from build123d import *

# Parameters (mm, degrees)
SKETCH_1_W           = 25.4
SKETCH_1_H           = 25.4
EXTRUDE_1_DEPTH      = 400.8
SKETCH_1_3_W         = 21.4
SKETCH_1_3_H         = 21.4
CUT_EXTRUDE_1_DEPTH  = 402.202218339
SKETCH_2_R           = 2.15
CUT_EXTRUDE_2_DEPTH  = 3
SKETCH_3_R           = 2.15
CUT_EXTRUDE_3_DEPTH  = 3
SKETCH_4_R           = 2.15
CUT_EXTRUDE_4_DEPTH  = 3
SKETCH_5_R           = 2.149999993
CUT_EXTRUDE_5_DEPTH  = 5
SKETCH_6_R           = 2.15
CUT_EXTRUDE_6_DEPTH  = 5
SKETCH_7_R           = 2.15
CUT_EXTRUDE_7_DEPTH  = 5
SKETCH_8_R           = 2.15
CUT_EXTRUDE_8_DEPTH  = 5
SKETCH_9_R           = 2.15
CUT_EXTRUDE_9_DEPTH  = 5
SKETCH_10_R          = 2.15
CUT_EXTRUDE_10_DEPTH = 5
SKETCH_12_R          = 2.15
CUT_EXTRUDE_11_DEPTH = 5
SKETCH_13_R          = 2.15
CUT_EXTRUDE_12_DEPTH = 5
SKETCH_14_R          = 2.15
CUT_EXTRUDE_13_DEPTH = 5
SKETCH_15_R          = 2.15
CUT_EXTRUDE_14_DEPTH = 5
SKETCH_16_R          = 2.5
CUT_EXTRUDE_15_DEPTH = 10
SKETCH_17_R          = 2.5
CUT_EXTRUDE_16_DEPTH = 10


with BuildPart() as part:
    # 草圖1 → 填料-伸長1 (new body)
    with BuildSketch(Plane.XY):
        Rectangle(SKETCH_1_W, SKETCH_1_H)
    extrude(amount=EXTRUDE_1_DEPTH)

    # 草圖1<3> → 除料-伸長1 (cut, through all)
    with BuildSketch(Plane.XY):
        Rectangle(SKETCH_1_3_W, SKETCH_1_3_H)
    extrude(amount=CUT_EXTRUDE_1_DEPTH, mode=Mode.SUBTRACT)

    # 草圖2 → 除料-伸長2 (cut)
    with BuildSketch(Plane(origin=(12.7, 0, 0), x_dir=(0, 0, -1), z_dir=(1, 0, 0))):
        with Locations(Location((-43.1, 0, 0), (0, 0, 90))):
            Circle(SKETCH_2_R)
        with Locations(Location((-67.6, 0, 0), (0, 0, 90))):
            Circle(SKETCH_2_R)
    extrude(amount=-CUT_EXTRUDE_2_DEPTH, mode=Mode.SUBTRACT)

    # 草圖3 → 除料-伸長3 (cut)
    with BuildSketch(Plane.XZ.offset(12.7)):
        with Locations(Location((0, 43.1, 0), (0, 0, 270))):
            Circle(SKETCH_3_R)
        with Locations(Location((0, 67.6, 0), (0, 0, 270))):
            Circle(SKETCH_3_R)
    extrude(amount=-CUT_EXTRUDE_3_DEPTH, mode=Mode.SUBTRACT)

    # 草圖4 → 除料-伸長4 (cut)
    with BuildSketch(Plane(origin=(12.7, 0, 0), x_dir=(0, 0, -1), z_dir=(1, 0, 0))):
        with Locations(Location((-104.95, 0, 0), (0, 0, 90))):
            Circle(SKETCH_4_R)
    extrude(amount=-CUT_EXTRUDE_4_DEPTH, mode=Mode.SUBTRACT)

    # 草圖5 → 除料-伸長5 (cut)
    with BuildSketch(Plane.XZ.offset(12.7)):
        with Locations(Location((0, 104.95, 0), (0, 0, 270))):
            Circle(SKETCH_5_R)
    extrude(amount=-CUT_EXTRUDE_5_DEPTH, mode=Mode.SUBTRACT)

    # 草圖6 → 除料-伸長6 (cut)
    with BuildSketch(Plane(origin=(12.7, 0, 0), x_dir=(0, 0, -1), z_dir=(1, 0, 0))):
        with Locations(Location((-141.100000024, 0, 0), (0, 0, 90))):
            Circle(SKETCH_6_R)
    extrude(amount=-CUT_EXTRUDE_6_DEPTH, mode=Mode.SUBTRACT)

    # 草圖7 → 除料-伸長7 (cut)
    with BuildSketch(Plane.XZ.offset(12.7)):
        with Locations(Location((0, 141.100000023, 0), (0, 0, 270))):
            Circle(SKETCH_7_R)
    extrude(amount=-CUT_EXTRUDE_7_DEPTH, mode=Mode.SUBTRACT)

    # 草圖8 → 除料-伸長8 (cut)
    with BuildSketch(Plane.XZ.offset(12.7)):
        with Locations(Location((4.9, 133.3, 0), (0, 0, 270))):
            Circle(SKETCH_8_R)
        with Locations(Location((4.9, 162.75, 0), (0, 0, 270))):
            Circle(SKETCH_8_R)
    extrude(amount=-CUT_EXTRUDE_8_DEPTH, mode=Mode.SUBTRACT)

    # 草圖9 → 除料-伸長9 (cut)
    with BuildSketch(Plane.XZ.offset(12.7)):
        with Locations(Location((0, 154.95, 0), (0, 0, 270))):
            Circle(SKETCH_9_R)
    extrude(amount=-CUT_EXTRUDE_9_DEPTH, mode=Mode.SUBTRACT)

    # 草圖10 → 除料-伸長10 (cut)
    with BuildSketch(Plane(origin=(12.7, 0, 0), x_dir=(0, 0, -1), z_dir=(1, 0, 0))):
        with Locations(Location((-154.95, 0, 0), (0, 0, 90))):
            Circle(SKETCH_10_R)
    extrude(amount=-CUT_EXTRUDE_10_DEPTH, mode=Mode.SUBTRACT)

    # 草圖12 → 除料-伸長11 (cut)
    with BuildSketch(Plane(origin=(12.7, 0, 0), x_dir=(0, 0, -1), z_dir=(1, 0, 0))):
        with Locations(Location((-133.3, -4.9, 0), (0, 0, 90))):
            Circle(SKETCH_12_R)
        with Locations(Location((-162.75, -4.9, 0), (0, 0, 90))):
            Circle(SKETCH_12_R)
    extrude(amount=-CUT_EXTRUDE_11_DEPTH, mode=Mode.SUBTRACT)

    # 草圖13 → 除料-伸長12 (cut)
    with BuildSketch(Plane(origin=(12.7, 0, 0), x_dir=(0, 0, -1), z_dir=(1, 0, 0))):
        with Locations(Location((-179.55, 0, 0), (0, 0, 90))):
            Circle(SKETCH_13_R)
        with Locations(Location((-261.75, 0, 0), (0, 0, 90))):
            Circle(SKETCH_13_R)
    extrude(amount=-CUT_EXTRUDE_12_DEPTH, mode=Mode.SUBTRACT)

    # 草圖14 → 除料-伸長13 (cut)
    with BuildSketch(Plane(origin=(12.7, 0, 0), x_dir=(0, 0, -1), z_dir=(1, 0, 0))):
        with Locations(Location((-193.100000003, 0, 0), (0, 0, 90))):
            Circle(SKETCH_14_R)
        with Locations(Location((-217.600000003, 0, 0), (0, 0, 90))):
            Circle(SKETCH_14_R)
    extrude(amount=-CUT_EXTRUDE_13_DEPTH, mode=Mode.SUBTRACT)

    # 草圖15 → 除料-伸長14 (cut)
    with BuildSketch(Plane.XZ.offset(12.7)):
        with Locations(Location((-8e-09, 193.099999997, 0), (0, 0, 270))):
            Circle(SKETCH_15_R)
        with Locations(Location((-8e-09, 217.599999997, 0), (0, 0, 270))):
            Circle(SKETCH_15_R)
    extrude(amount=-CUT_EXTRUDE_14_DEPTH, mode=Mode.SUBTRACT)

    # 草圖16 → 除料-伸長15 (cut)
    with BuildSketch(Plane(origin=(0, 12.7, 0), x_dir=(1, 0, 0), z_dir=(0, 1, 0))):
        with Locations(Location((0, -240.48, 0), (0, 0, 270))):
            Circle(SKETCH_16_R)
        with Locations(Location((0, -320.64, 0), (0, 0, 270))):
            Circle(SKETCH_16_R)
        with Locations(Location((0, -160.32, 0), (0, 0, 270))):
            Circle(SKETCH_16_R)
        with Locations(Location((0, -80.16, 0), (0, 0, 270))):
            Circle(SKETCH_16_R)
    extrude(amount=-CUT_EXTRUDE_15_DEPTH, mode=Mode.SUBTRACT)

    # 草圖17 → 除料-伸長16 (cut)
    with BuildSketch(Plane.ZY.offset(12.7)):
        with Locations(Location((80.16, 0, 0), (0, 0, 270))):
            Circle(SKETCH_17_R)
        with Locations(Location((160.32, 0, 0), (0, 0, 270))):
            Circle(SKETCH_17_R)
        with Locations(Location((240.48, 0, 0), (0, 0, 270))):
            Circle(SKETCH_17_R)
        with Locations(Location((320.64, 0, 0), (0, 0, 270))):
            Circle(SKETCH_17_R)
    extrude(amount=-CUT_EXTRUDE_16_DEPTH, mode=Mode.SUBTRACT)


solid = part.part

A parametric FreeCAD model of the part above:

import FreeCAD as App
import Part
import Sketcher

V = App.Vector
Q = App.Units.Quantity

doc = App.newDocument("Part")
params = doc.addObject("Spreadsheet::Sheet", "Params")
for row, (alias, value) in enumerate([
    ("sketch1_width", "25.4 mm"),
    ("pad1_length", "400.8 mm"),
    ("sketch2_width", "21.4 mm"),
    ("sketch3_diameter", "4.3 mm"),
    ("pocket2_length", "3 mm"),
    ("sketch4_diameter", "4.3 mm"),
    ("pocket3_length", "3 mm"),
    ("sketch5_diameter", "4.3 mm"),
    ("pocket4_length", "3 mm"),
    ("sketch6_diameter", "4.3 mm"),
    ("pocket5_length", "5 mm"),
    ("sketch7_diameter", "4.3 mm"),
    ("pocket6_length", "5 mm"),
    ("sketch8_diameter", "4.3 mm"),
    ("pocket7_length", "5 mm"),
    ("sketch9_diameter", "4.3 mm"),
    ("pocket8_length", "5 mm"),
    ("sketch10_diameter", "4.3 mm"),
    ("pocket9_length", "5 mm"),
    ("sketch11_diameter", "4.3 mm"),
    ("pocket10_length", "5 mm"),
    ("sketch12_diameter", "4.3 mm"),
    ("pocket11_length", "5 mm"),
    ("sketch13_diameter", "4.3 mm"),
    ("pocket12_length", "5 mm"),
    ("sketch14_diameter", "4.3 mm"),
    ("pocket13_length", "5 mm"),
    ("sketch15_diameter", "4.3 mm"),
    ("pocket14_length", "5 mm"),
    ("sketch16_diameter", "5 mm"),
    ("pocket15_length", "10 mm"),
    ("sketch17_diameter", "5 mm"),
    ("pocket16_length", "10 mm"),
], start=1):
    params.set(f"A{row}", alias)
    params.set(f"B{row}", "=" + value)
    params.setAlias(f"B{row}", alias)

body = doc.addObject("PartDesign::Body", "Body")

sketch1 = body.newObject("Sketcher::SketchObject", "Sketch")
sketch1.AttachmentSupport = (doc.getObject("XY_Plane"), [""])
sketch1.MapMode = "FlatFace"
sketch1.addGeometry([
    Part.LineSegment(V(-13, 13, 0), V(-13, -13, 0)),
    Part.LineSegment(V(-13, -13, 0), V(13, -13, 0)),
    Part.LineSegment(V(13, -13, 0), V(13, 13, 0)),
    Part.LineSegment(V(13, 13, 0), V(-13, 13, 0)),
], False)
sketch1.addConstraint([
    Sketcher.Constraint("Coincident", 0, 2, 1, 1),
    Sketcher.Constraint("Coincident", 1, 2, 2, 1),
    Sketcher.Constraint("Coincident", 2, 2, 3, 1),
    Sketcher.Constraint("Coincident", 3, 2, 0, 1),
    Sketcher.Constraint("Vertical", 0),
    Sketcher.Constraint("Horizontal", 1),
    Sketcher.Constraint("Vertical", 2),
    Sketcher.Constraint("Horizontal", 3),
    Sketcher.Constraint("Symmetric", 0, 2, 2, 2, -1, 1),
    Sketcher.Constraint("Equal", 3, 0),
    Sketcher.Constraint("DistanceX", 1, 1, 1, 2, Q("25.4 mm")),
])
sketch1.setExpression("Constraints[10]", "Params.sketch1_width")
pad1 = body.newObject("PartDesign::Pad", "Pad")
pad1.Profile = sketch1
pad1.setExpression("Length", "Params.pad1_length")

sketch2 = body.newObject("Sketcher::SketchObject", "Sketch001")
sketch2.AttachmentSupport = (doc.getObject("XY_Plane"), [""])
sketch2.MapMode = "FlatFace"
sketch2.addGeometry([
    Part.LineSegment(V(-11, 11, 0), V(-11, -11, 0)),
    Part.LineSegment(V(-11, -11, 0), V(11, -11, 0)),
    Part.LineSegment(V(11, -11, 0), V(11, 11, 0)),
    Part.LineSegment(V(11, 11, 0), V(-11, 11, 0)),
], False)
sketch2.addConstraint([
    Sketcher.Constraint("Coincident", 0, 2, 1, 1),
    Sketcher.Constraint("Coincident", 1, 2, 2, 1),
    Sketcher.Constraint("Coincident", 2, 2, 3, 1),
    Sketcher.Constraint("Coincident", 3, 2, 0, 1),
    Sketcher.Constraint("Vertical", 0),
    Sketcher.Constraint("Horizontal", 1),
    Sketcher.Constraint("Vertical", 2),
    Sketcher.Constraint("Horizontal", 3),
    Sketcher.Constraint("Symmetric", 0, 2, 2, 2, -1, 1),
    Sketcher.Constraint("Equal", 3, 0),
    Sketcher.Constraint("DistanceX", 1, 1, 1, 2, Q("21.4 mm")),
])
sketch2.setExpression("Constraints[10]", "Params.sketch2_width")
pocket1 = body.newObject("PartDesign::Pocket", "Pocket")
pocket1.Profile = sketch2
pocket1.Type = "ThroughAll"
pocket1.Reversed = True

sketch3 = body.newObject("Sketcher::SketchObject", "Sketch002")
sketch3.AttachmentSupport = (doc.getObject("YZ_Plane"), [""])
sketch3.MapMode = "FlatFace"
sketch3.AttachmentOffset = App.Placement(V(0, 0, 12.7), App.Rotation())
sketch3.addGeometry([
    Part.Circle(V(0, 43.1, 0), V(0, 0, 1), 2.1),
    Part.Circle(V(0, 67.6, 0), V(0, 0, 1), 2.1),
], False)
sketch3.addConstraint([
    Sketcher.Constraint("Equal", 0, 1),
    Sketcher.Constraint("PointOnObject", 0, 3, -2),
    Sketcher.Constraint("PointOnObject", 1, 3, -2),
    Sketcher.Constraint("Diameter", 0, Q("4.3 mm")),
    Sketcher.Constraint("DistanceY", -1, 1, 0, 3, Q("43.1 mm")),
    Sketcher.Constraint("DistanceY", -1, 1, 1, 3, Q("67.6 mm")),
])
sketch3.setExpression("Constraints[3]", "Params.sketch3_diameter")
pocket2 = body.newObject("PartDesign::Pocket", "Pocket001")
pocket2.Profile = sketch3
pocket2.setExpression("Length", "Params.pocket2_length")

sketch4 = body.newObject("Sketcher::SketchObject", "Sketch003")
sketch4.AttachmentSupport = (doc.getObject("XZ_Plane"), [""])
sketch4.MapMode = "FlatFace"
sketch4.AttachmentOffset = App.Placement(V(0, 0, 12.7), App.Rotation())
sketch4.addGeometry([
    Part.Circle(V(0, 43.1, 0), V(0, 0, 1), 2.1),
    Part.Circle(V(0, 67.6, 0), V(0, 0, 1), 2.1),
], False)
sketch4.addConstraint([
    Sketcher.Constraint("Equal", 0, 1),
    Sketcher.Constraint("PointOnObject", 0, 3, -2),
    Sketcher.Constraint("PointOnObject", 1, 3, -2),
    Sketcher.Constraint("Diameter", 0, Q("4.3 mm")),
    Sketcher.Constraint("DistanceY", -1, 1, 0, 3, Q("43.1 mm")),
    Sketcher.Constraint("DistanceY", -1, 1, 1, 3, Q("67.6 mm")),
])
sketch4.setExpression("Constraints[3]", "Params.sketch4_diameter")
pocket3 = body.newObject("PartDesign::Pocket", "Pocket002")
pocket3.Profile = sketch4
pocket3.setExpression("Length", "Params.pocket3_length")

sketch5 = body.newObject("Sketcher::SketchObject", "Sketch004")
sketch5.AttachmentSupport = (doc.getObject("YZ_Plane"), [""])
sketch5.MapMode = "FlatFace"
sketch5.AttachmentOffset = App.Placement(V(0, 0, 12.7), App.Rotation())
sketch5.addGeometry(Part.Circle(V(0, 105, 0), V(0, 0, 1), 2.1), False)
sketch5.addConstraint([
    Sketcher.Constraint("PointOnObject", 0, 3, -2),
    Sketcher.Constraint("Diameter", 0, Q("4.3 mm")),
    Sketcher.Constraint("DistanceY", -1, 1, 0, 3, Q("104.95 mm")),
])
sketch5.setExpression("Constraints[1]", "Params.sketch5_diameter")
pocket4 = body.newObject("PartDesign::Pocket", "Pocket003")
pocket4.Profile = sketch5
pocket4.setExpression("Length", "Params.pocket4_length")

sketch6 = body.newObject("Sketcher::SketchObject", "Sketch005")
sketch6.AttachmentSupport = (doc.getObject("XZ_Plane"), [""])
sketch6.MapMode = "FlatFace"
sketch6.AttachmentOffset = App.Placement(V(0, 0, 12.7), App.Rotation())
sketch6.addGeometry(Part.Circle(V(0, 105, 0), V(0, 0, 1), 2.1), False)
sketch6.addConstraint([
    Sketcher.Constraint("PointOnObject", 0, 3, -2),
    Sketcher.Constraint("Diameter", 0, Q("4.3 mm")),
    Sketcher.Constraint("DistanceY", -1, 1, 0, 3, Q("104.95 mm")),
])
sketch6.setExpression("Constraints[1]", "Params.sketch6_diameter")
pocket5 = body.newObject("PartDesign::Pocket", "Pocket004")
pocket5.Profile = sketch6
pocket5.setExpression("Length", "Params.pocket5_length")

sketch7 = body.newObject("Sketcher::SketchObject", "Sketch006")
sketch7.AttachmentSupport = (doc.getObject("YZ_Plane"), [""])
sketch7.MapMode = "FlatFace"
sketch7.AttachmentOffset = App.Placement(V(0, 0, 12.7), App.Rotation())
sketch7.addGeometry(Part.Circle(V(0, 141.1, 0), V(0, 0, 1), 2.1), False)
sketch7.addConstraint([
    Sketcher.Constraint("PointOnObject", 0, 3, -2),
    Sketcher.Constraint("Diameter", 0, Q("4.3 mm")),
    Sketcher.Constraint("DistanceY", -1, 1, 0, 3, Q("141.1 mm")),
])
sketch7.setExpression("Constraints[1]", "Params.sketch7_diameter")
pocket6 = body.newObject("PartDesign::Pocket", "Pocket005")
pocket6.Profile = sketch7
pocket6.setExpression("Length", "Params.pocket6_length")

sketch8 = body.newObject("Sketcher::SketchObject", "Sketch007")
sketch8.AttachmentSupport = (doc.getObject("XZ_Plane"), [""])
sketch8.MapMode = "FlatFace"
sketch8.AttachmentOffset = App.Placement(V(0, 0, 12.7), App.Rotation())
sketch8.addGeometry(Part.Circle(V(0, 141.1, 0), V(0, 0, 1), 2.1), False)
sketch8.addConstraint([
    Sketcher.Constraint("PointOnObject", 0, 3, -2),
    Sketcher.Constraint("Diameter", 0, Q("4.3 mm")),
    Sketcher.Constraint("DistanceY", -1, 1, 0, 3, Q("141.1 mm")),
])
sketch8.setExpression("Constraints[1]", "Params.sketch8_diameter")
pocket7 = body.newObject("PartDesign::Pocket", "Pocket006")
pocket7.Profile = sketch8
pocket7.setExpression("Length", "Params.pocket7_length")

sketch9 = body.newObject("Sketcher::SketchObject", "Sketch008")
sketch9.AttachmentSupport = (doc.getObject("XZ_Plane"), [""])
sketch9.MapMode = "FlatFace"
sketch9.AttachmentOffset = App.Placement(V(0, 0, 12.7), App.Rotation())
sketch9.addGeometry([
    Part.Circle(V(4.9, 133.3, 0), V(0, 0, 1), 2.1),
    Part.Circle(V(4.9, 162.8, 0), V(0, 0, 1), 2.1),
], False)
sketch9.addConstraint([
    Sketcher.Constraint("Equal", 0, 1),
    Sketcher.Constraint("Vertical", 0, 3, 1, 3),
    Sketcher.Constraint("Diameter", 0, Q("4.3 mm")),
    Sketcher.Constraint("DistanceX", -1, 1, 0, 3, Q("4.9 mm")),
    Sketcher.Constraint("DistanceY", -1, 1, 0, 3, Q("133.3 mm")),
    Sketcher.Constraint("DistanceY", -1, 1, 1, 3, Q("162.75 mm")),
])
sketch9.setExpression("Constraints[2]", "Params.sketch9_diameter")
pocket8 = body.newObject("PartDesign::Pocket", "Pocket007")
pocket8.Profile = sketch9
pocket8.setExpression("Length", "Params.pocket8_length")

sketch10 = body.newObject("Sketcher::SketchObject", "Sketch009")
sketch10.AttachmentSupport = (doc.getObject("XZ_Plane"), [""])
sketch10.MapMode = "FlatFace"
sketch10.AttachmentOffset = App.Placement(V(0, 0, 12.7), App.Rotation())
sketch10.addGeometry(Part.Circle(V(0, 154.9, 0), V(0, 0, 1), 2.1), False)
sketch10.addConstraint([
    Sketcher.Constraint("PointOnObject", 0, 3, -2),
    Sketcher.Constraint("Diameter", 0, Q("4.3 mm")),
    Sketcher.Constraint("DistanceY", -1, 1, 0, 3, Q("154.95 mm")),
])
sketch10.setExpression("Constraints[1]", "Params.sketch10_diameter")
pocket9 = body.newObject("PartDesign::Pocket", "Pocket008")
pocket9.Profile = sketch10
pocket9.setExpression("Length", "Params.pocket9_length")

sketch11 = body.newObject("Sketcher::SketchObject", "Sketch010")
sketch11.AttachmentSupport = (doc.getObject("YZ_Plane"), [""])
sketch11.MapMode = "FlatFace"
sketch11.AttachmentOffset = App.Placement(V(0, 0, 12.7), App.Rotation())
sketch11.addGeometry(Part.Circle(V(0, 154.9, 0), V(0, 0, 1), 2.1), False)
sketch11.addConstraint([
    Sketcher.Constraint("PointOnObject", 0, 3, -2),
    Sketcher.Constraint("Diameter", 0, Q("4.3 mm")),
    Sketcher.Constraint("DistanceY", -1, 1, 0, 3, Q("154.95 mm")),
])
sketch11.setExpression("Constraints[1]", "Params.sketch11_diameter")
pocket10 = body.newObject("PartDesign::Pocket", "Pocket009")
pocket10.Profile = sketch11
pocket10.setExpression("Length", "Params.pocket10_length")

sketch12 = body.newObject("Sketcher::SketchObject", "Sketch011")
sketch12.AttachmentSupport = (doc.getObject("YZ_Plane"), [""])
sketch12.MapMode = "FlatFace"
sketch12.AttachmentOffset = App.Placement(V(0, 0, 12.7), App.Rotation())
sketch12.addGeometry([
    Part.Circle(V(-4.9, 133.3, 0), V(0, 0, 1), 2.1),
    Part.Circle(V(-4.9, 162.8, 0), V(0, 0, 1), 2.1),
], False)
sketch12.addConstraint([
    Sketcher.Constraint("Equal", 0, 1),
    Sketcher.Constraint("Vertical", 0, 3, 1, 3),
    Sketcher.Constraint("Diameter", 0, Q("4.3 mm")),
    Sketcher.Constraint("DistanceX", 0, 3, -1, 1, Q("4.9 mm")),
    Sketcher.Constraint("DistanceY", -1, 1, 0, 3, Q("133.3 mm")),
    Sketcher.Constraint("DistanceY", -1, 1, 1, 3, Q("162.75 mm")),
])
sketch12.setExpression("Constraints[2]", "Params.sketch12_diameter")
pocket11 = body.newObject("PartDesign::Pocket", "Pocket010")
pocket11.Profile = sketch12
pocket11.setExpression("Length", "Params.pocket11_length")

sketch13 = body.newObject("Sketcher::SketchObject", "Sketch012")
sketch13.AttachmentSupport = (doc.getObject("YZ_Plane"), [""])
sketch13.MapMode = "FlatFace"
sketch13.AttachmentOffset = App.Placement(V(0, 0, 12.7), App.Rotation())
sketch13.addGeometry([
    Part.Circle(V(0, 179.6, 0), V(0, 0, 1), 2.1),
    Part.Circle(V(0, 261.8, 0), V(0, 0, 1), 2.1),
], False)
sketch13.addConstraint([
    Sketcher.Constraint("Equal", 0, 1),
    Sketcher.Constraint("PointOnObject", 0, 3, -2),
    Sketcher.Constraint("PointOnObject", 1, 3, -2),
    Sketcher.Constraint("Diameter", 0, Q("4.3 mm")),
    Sketcher.Constraint("DistanceY", 0, 3, 1, 3, Q("82.2 mm")),
    Sketcher.Constraint("DistanceY", -1, 1, 0, 3, Q("179.55 mm")),
])
sketch13.setExpression("Constraints[3]", "Params.sketch13_diameter")
pocket12 = body.newObject("PartDesign::Pocket", "Pocket011")
pocket12.Profile = sketch13
pocket12.setExpression("Length", "Params.pocket12_length")

sketch14 = body.newObject("Sketcher::SketchObject", "Sketch013")
sketch14.AttachmentSupport = (doc.getObject("YZ_Plane"), [""])
sketch14.MapMode = "FlatFace"
sketch14.AttachmentOffset = App.Placement(V(0, 0, 12.7), App.Rotation())
sketch14.addGeometry([
    Part.Circle(V(0, 193.1, 0), V(0, 0, 1), 2.1),
    Part.Circle(V(0, 217.6, 0), V(0, 0, 1), 2.1),
], False)
sketch14.addConstraint([
    Sketcher.Constraint("Equal", 0, 1),
    Sketcher.Constraint("PointOnObject", 0, 3, -2),
    Sketcher.Constraint("PointOnObject", 1, 3, -2),
    Sketcher.Constraint("Diameter", 0, Q("4.3 mm")),
    Sketcher.Constraint("DistanceY", -1, 1, 0, 3, Q("193.1 mm")),
    Sketcher.Constraint("DistanceY", -1, 1, 1, 3, Q("217.6 mm")),
])
sketch14.setExpression("Constraints[3]", "Params.sketch14_diameter")
pocket13 = body.newObject("PartDesign::Pocket", "Pocket012")
pocket13.Profile = sketch14
pocket13.setExpression("Length", "Params.pocket13_length")

sketch15 = body.newObject("Sketcher::SketchObject", "Sketch014")
sketch15.AttachmentSupport = (doc.getObject("XZ_Plane"), [""])
sketch15.MapMode = "FlatFace"
sketch15.AttachmentOffset = App.Placement(V(0, 0, 12.7), App.Rotation())
sketch15.addGeometry([
    Part.Circle(V(0, 193.1, 0), V(0, 0, 1), 2.1),
    Part.Circle(V(0, 217.6, 0), V(0, 0, 1), 2.1),
], False)
sketch15.addConstraint([
    Sketcher.Constraint("Equal", 0, 1),
    Sketcher.Constraint("PointOnObject", 0, 3, -2),
    Sketcher.Constraint("PointOnObject", 1, 3, -2),
    Sketcher.Constraint("Diameter", 0, Q("4.3 mm")),
    Sketcher.Constraint("DistanceY", -1, 1, 0, 3, Q("193.1 mm")),
    Sketcher.Constraint("DistanceY", -1, 1, 1, 3, Q("217.6 mm")),
])
sketch15.setExpression("Constraints[3]", "Params.sketch15_diameter")
pocket14 = body.newObject("PartDesign::Pocket", "Pocket013")
pocket14.Profile = sketch15
pocket14.setExpression("Length", "Params.pocket14_length")

sketch16 = body.newObject("Sketcher::SketchObject", "Sketch015")
sketch16.AttachmentSupport = (doc.getObject("XZ_Plane"), [""])
sketch16.MapMode = "FlatFace"
sketch16.AttachmentOffset = App.Placement(V(0, 0, -12.7), App.Rotation())
sketch16.addGeometry([
    Part.Circle(V(0, 240.5, 0), V(0, 0, 1), 2.5),
    Part.Circle(V(0, 320.6, 0), V(0, 0, 1), 2.5),
    Part.Circle(V(0, 160.3, 0), V(0, 0, 1), 2.5),
    Part.Circle(V(0, 80.2, 0), V(0, 0, 1), 2.5),
], False)
sketch16.addConstraint([
    Sketcher.Constraint("Equal", 0, 1),
    Sketcher.Constraint("Equal", 1, 2),
    Sketcher.Constraint("Equal", 2, 3),
    Sketcher.Constraint("PointOnObject", 0, 3, -2),
    Sketcher.Constraint("PointOnObject", 1, 3, -2),
    Sketcher.Constraint("PointOnObject", 2, 3, -2),
    Sketcher.Constraint("PointOnObject", 3, 3, -2),
    Sketcher.Constraint("Diameter", 0, Q("5 mm")),
    Sketcher.Constraint("DistanceY", -1, 1, 0, 3, Q("240.48 mm")),
    Sketcher.Constraint("DistanceY", -1, 1, 1, 3, Q("320.64 mm")),
    Sketcher.Constraint("DistanceY", -1, 1, 2, 3, Q("160.32 mm")),
    Sketcher.Constraint("DistanceY", -1, 1, 3, 3, Q("80.16 mm")),
])
sketch16.setExpression("Constraints[7]", "Params.sketch16_diameter")
pocket15 = body.newObject("PartDesign::Pocket", "Pocket014")
pocket15.Profile = sketch16
pocket15.setExpression("Length", "Params.pocket15_length")
pocket15.Reversed = True

sketch17 = body.newObject("Sketcher::SketchObject", "Sketch016")
sketch17.AttachmentSupport = (doc.getObject("YZ_Plane"), [""])
sketch17.MapMode = "FlatFace"
sketch17.AttachmentOffset = App.Placement(V(0, 0, -12.7), App.Rotation())
sketch17.addGeometry([
    Part.Circle(V(0, 80.2, 0), V(0, 0, 1), 2.5),
    Part.Circle(V(0, 160.3, 0), V(0, 0, 1), 2.5),
    Part.Circle(V(0, 240.5, 0), V(0, 0, 1), 2.5),
    Part.Circle(V(0, 320.6, 0), V(0, 0, 1), 2.5),
], False)
sketch17.addConstraint([
    Sketcher.Constraint("Equal", 0, 1),
    Sketcher.Constraint("Equal", 1, 2),
    Sketcher.Constraint("Equal", 2, 3),
    Sketcher.Constraint("PointOnObject", 0, 3, -2),
    Sketcher.Constraint("PointOnObject", 1, 3, -2),
    Sketcher.Constraint("PointOnObject", 2, 3, -2),
    Sketcher.Constraint("PointOnObject", 3, 3, -2),
    Sketcher.Constraint("Diameter", 0, Q("5 mm")),
    Sketcher.Constraint("DistanceY", -1, 1, 0, 3, Q("80.16 mm")),
    Sketcher.Constraint("DistanceY", -1, 1, 1, 3, Q("160.32 mm")),
    Sketcher.Constraint("DistanceY", -1, 1, 2, 3, Q("240.48 mm")),
    Sketcher.Constraint("DistanceY", -1, 1, 3, 3, Q("320.64 mm")),
])
sketch17.setExpression("Constraints[7]", "Params.sketch17_diameter")
pocket16 = body.newObject("PartDesign::Pocket", "Pocket015")
pocket16.Profile = sketch17
pocket16.setExpression("Length", "Params.pocket16_length")
pocket16.Reversed = True

doc.recompute()
